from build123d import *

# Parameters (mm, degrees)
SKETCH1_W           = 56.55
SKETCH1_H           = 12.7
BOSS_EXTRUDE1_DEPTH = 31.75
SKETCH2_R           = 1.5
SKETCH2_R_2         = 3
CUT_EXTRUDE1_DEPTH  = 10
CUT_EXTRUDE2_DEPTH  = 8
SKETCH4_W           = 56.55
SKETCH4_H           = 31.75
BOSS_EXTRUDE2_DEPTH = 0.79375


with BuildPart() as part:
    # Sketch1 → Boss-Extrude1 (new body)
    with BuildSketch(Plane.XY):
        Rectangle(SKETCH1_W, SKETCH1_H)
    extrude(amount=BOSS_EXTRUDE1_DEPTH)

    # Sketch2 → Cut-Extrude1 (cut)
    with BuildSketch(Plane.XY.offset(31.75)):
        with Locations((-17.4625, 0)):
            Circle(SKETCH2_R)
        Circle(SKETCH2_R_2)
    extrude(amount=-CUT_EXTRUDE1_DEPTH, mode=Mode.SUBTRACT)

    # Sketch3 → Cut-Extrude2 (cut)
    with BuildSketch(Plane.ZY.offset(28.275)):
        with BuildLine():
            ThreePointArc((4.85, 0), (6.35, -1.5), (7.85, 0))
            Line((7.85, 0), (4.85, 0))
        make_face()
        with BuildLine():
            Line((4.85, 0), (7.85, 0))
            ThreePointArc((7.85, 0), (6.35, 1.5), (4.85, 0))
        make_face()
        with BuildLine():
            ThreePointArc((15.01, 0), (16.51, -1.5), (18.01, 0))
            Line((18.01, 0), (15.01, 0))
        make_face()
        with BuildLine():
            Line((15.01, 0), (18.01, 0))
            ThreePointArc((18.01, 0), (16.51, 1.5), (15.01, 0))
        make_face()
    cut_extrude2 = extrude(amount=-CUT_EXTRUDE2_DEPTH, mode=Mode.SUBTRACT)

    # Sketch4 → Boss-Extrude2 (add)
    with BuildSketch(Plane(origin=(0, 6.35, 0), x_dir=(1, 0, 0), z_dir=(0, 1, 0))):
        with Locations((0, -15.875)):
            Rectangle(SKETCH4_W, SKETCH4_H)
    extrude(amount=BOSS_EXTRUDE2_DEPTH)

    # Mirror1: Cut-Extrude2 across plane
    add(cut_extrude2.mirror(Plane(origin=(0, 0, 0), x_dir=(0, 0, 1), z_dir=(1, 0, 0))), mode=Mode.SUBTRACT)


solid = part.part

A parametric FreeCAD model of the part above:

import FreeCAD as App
import Part
import Sketcher
from FreeCAD import Vector


def add_polygon(sketch, points):
    """Adds a closed chain of lines whose ends are joined by coincident constraints."""
    first, n = sketch.GeometryCount, len(points)
    for a, b in zip(points, points[1:] + points[:1]):
        sketch.addGeometry(Part.LineSegment(App.Vector(*a, 0), App.Vector(*b, 0)), False)
    for i in range(n):
        sketch.addConstraint(Sketcher.Constraint("Coincident", first + i, 2, first + (i + 1) % n, 1))

doc = App.newDocument("Part")
body = doc.addObject("PartDesign::Body", "Body")

# Sketch on XY plane
sketch1 = body.newObject("Sketcher::SketchObject", "Sketch")
sketch1.AttachmentSupport = (doc.getObject("XY_Plane"), [""])
sketch1.MapMode = "FlatFace"
add_polygon(sketch1, [(-28, 6), (-28, -6), (28, -6), (28, 6)])  # lines 0-3
sketch1.addConstraint(Sketcher.Constraint("Vertical", 0))
sketch1.addConstraint(Sketcher.Constraint("Horizontal", 1))
sketch1.addConstraint(Sketcher.Constraint("Vertical", 2))
sketch1.addConstraint(Sketcher.Constraint("Horizontal", 3))
sketch1.addConstraint(Sketcher.Constraint("Symmetric", 0, 2, 2, 2, -1, 1))
sketch1.addConstraint(Sketcher.Constraint("DistanceY", 0, 2, 0, 1, 12.7))
sketch1.addConstraint(Sketcher.Constraint("DistanceX", 1, 1, 1, 2, 56.55))
pad1 = body.newObject("PartDesign::Pad", "Pad")
pad1.Profile = sketch1
pad1.Length = 31.75

# Sketch on XY plane
sketch2 = body.newObject("Sketcher::SketchObject", "Sketch001")
sketch2.AttachmentSupport = (doc.getObject("XY_Plane"), [""])
sketch2.MapMode = "FlatFace"
sketch2.AttachmentOffset = App.Placement(Vector(0, 0, 31.75), App.Rotation())
sketch2.addGeometry(Part.Circle(Vector(-17.5, 0, 0), Vector(0, 0, 1), 1.5), False)
sketch2.addGeometry(Part.Circle(Vector(0, 0, 0), Vector(0, 0, 1), 3), False)
sketch2.addConstraint(Sketcher.Constraint("Coincident", 1, 3, -1, 1))
sketch2.addConstraint(Sketcher.Constraint("PointOnObject", 0, 3, -1))
sketch2.addConstraint(Sketcher.Constraint("Diameter", 0, 3.0))
sketch2.addConstraint(Sketcher.Constraint("Diameter", 1, 6.0))
sketch2.addConstraint(Sketcher.Constraint("DistanceX", 0, 3, -1, 1, 17.4625))
pocket1 = body.newObject("PartDesign::Pocket", "Pocket")
pocket1.Profile = sketch2
pocket1.Length = 10

# Sketch on YZ plane
sketch3 = body.newObject("Sketcher::SketchObject", "Sketch002")
sketch3.AttachmentSupport = (doc.getObject("YZ_Plane"), [""])
sketch3.MapMode = "FlatFace"
sketch3.AttachmentOffset = App.Placement(Vector(0, 0, -28.275), App.Rotation())
sketch3.addGeometry(Part.Circle(Vector(0, 6.3, 0), Vector(0, 0, 1), 1.5), False)
sketch3.addGeometry(Part.Circle(Vector(0, 16.5, 0), Vector(0, 0, 1), 1.5), False)
sketch3.addConstraint(Sketcher.Constraint("Equal", 0, 1))
sketch3.addConstraint(Sketcher.Constraint("PointOnObject", 0, 3, -2))
sketch3.addConstraint(Sketcher.Constraint("PointOnObject", 1, 3, -2))
sketch3.addConstraint(Sketcher.Constraint("Diameter", 0, 3.0))
sketch3.addConstraint(Sketcher.Constraint("DistanceY", -1, 1, 0, 3, 6.35))
sketch3.addConstraint(Sketcher.Constraint("DistanceY", -1, 1, 1, 3, 16.51))
pocket2 = body.newObject("PartDesign::Pocket", "Pocket001")
pocket2.Profile = sketch3
pocket2.Length = 8
pocket2.Reversed = True

# Sketch on XZ plane
sketch4 = body.newObject("Sketcher::SketchObject", "Sketch003")
sketch4.AttachmentSupport = (doc.getObject("XZ_Plane"), [""])
sketch4.MapMode = "FlatFace"
sketch4.AttachmentOffset = App.Placement(Vector(0, 0, -6.35), App.Rotation())
add_polygon(sketch4, [(-28, 0), (-28, 32), (28, 32), (28, 0)])  # lines 0-3
sketch4.addConstraint(Sketcher.Constraint("Vertical", 0))
sketch4.addConstraint(Sketcher.Constraint("Horizontal", 1))
sketch4.addConstraint(Sketcher.Constraint("Vertical", 2))
sketch4.addConstraint(Sketcher.Constraint("Horizontal", 3))
sketch4.addConstraint(Sketcher.Constraint("Symmetric", 2, 2, 3, 2, -1, 1))
sketch4.addConstraint(Sketcher.Constraint("DistanceX", 1, 1, 1, 2, 56.55))
sketch4.addConstraint(Sketcher.Constraint("DistanceY", 0, 1, 0, 2, 31.75))
pad2 = body.newObject("PartDesign::Pad", "Pad001")
pad2.Profile = sketch4
pad2.Length = 0.79375
pad2.Reversed = True
doc.recompute()

mirrored = body.newObject("PartDesign::Mirrored", "Mirrored")
mirrored.Originals = [pocket2]
mirrored.MirrorPlane = (doc.getObject("YZ_Plane"), [""])
body.Tip = mirrored

doc.recompute()
